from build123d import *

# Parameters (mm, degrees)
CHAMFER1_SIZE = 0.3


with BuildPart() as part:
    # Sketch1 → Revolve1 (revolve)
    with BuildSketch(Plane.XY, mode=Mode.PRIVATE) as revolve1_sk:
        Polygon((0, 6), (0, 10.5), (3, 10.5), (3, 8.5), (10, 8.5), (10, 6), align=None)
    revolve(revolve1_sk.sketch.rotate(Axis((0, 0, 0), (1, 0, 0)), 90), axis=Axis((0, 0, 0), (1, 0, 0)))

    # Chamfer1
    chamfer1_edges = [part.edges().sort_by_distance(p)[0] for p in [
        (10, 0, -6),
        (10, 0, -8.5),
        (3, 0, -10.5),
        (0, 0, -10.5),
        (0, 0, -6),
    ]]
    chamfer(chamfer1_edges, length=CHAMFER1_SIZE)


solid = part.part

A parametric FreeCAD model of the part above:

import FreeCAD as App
import Part
import Sketcher


def edges_at(feature, points):
    """Names of the edges that pass closest to the given points."""
    edges = feature.Shape.Edges
    near = lambda p: min(range(len(edges)), key=lambda i: edges[i].distToShape(Part.Vertex(*p))[0])
    return sorted({f"Edge{near(p) + 1}" for p in points})

doc = App.newDocument("Part")
body = doc.addObject("PartDesign::Body", "Body")

# Sketch on XY plane
sketch1 = body.newObject("Sketcher::SketchObject", "Sketch")
sketch1.AttachmentSupport = (doc.getObject("XY_Plane"), [""])
sketch1.MapMode = "FlatFace"
sketch1.addGeometry([
    Part.LineSegment(App.Vector(0, 10.5, 0), App.Vector(0, 6, 0)),  # 0
    Part.LineSegment(App.Vector(0, 6, 0), App.Vector(10, 6, 0)),  # 1
    Part.LineSegment(App.Vector(10, 6, 0), App.Vector(10, 8.5, 0)),  # 2
    Part.LineSegment(App.Vector(10, 8.5, 0), App.Vector(3, 8.5, 0)),  # 3
    Part.LineSegment(App.Vector(3, 8.5, 0), App.Vector(3, 10.5, 0)),  # 4
    Part.LineSegment(App.Vector(3, 10.5, 0), App.Vector(0, 10.5, 0)),  # 5
], False)
sketch1.addConstraint([
    Sketcher.Constraint("Coincident", 0, 2, 1, 1),
    Sketcher.Constraint("Coincident", 1, 2, 2, 1),
    Sketcher.Constraint("Coincident", 2, 2, 3, 1),
    Sketcher.Constraint("Coincident", 3, 2, 4, 1),
    Sketcher.Constraint("Coincident", 4, 2, 5, 1),
    Sketcher.Constraint("Coincident", 5, 2, 0, 1),
    Sketcher.Constraint("Vertical", 0),
    Sketcher.Constraint("Horizontal", 1),
    Sketcher.Constraint("Vertical", 2),
    Sketcher.Constraint("Horizontal", 3),
    Sketcher.Constraint("Vertical", 4),
    Sketcher.Constraint("Horizontal", 5),
    Sketcher.Constraint("PointOnObject", 0, 2, -2),
    Sketcher.Constraint("DistanceX", 1, 1, 1, 2, 10.0),
    Sketcher.Constraint("DistanceX", 3, 2, 3, 1, 7.0),
    Sketcher.Constraint("DistanceY", 4, 1, 4, 2, 2.0),
    Sketcher.Constraint("DistanceY", 0, 2, 0, 1, 4.5),
    Sketcher.Constraint("DistanceY", -1, 1, 0, 2, 6.0),
])
revolution = body.newObject("PartDesign::Revolution", "Revolution")
revolution.Profile = sketch1
revolution.ReferenceAxis = (sketch1, ["H_Axis"])
revolution.Angle = 360
doc.recompute()

chamfer = body.newObject("PartDesign::Chamfer", "Chamfer")
chamfer.Base = (revolution, edges_at(revolution, [
    (10, 0, -6),
    (10, 0, -8.5),
    (3, 0, -10.5),
    (0, 0, -10.5),
    (0, 0, -6),
]))
chamfer.Size = 0.3

doc.recompute()
